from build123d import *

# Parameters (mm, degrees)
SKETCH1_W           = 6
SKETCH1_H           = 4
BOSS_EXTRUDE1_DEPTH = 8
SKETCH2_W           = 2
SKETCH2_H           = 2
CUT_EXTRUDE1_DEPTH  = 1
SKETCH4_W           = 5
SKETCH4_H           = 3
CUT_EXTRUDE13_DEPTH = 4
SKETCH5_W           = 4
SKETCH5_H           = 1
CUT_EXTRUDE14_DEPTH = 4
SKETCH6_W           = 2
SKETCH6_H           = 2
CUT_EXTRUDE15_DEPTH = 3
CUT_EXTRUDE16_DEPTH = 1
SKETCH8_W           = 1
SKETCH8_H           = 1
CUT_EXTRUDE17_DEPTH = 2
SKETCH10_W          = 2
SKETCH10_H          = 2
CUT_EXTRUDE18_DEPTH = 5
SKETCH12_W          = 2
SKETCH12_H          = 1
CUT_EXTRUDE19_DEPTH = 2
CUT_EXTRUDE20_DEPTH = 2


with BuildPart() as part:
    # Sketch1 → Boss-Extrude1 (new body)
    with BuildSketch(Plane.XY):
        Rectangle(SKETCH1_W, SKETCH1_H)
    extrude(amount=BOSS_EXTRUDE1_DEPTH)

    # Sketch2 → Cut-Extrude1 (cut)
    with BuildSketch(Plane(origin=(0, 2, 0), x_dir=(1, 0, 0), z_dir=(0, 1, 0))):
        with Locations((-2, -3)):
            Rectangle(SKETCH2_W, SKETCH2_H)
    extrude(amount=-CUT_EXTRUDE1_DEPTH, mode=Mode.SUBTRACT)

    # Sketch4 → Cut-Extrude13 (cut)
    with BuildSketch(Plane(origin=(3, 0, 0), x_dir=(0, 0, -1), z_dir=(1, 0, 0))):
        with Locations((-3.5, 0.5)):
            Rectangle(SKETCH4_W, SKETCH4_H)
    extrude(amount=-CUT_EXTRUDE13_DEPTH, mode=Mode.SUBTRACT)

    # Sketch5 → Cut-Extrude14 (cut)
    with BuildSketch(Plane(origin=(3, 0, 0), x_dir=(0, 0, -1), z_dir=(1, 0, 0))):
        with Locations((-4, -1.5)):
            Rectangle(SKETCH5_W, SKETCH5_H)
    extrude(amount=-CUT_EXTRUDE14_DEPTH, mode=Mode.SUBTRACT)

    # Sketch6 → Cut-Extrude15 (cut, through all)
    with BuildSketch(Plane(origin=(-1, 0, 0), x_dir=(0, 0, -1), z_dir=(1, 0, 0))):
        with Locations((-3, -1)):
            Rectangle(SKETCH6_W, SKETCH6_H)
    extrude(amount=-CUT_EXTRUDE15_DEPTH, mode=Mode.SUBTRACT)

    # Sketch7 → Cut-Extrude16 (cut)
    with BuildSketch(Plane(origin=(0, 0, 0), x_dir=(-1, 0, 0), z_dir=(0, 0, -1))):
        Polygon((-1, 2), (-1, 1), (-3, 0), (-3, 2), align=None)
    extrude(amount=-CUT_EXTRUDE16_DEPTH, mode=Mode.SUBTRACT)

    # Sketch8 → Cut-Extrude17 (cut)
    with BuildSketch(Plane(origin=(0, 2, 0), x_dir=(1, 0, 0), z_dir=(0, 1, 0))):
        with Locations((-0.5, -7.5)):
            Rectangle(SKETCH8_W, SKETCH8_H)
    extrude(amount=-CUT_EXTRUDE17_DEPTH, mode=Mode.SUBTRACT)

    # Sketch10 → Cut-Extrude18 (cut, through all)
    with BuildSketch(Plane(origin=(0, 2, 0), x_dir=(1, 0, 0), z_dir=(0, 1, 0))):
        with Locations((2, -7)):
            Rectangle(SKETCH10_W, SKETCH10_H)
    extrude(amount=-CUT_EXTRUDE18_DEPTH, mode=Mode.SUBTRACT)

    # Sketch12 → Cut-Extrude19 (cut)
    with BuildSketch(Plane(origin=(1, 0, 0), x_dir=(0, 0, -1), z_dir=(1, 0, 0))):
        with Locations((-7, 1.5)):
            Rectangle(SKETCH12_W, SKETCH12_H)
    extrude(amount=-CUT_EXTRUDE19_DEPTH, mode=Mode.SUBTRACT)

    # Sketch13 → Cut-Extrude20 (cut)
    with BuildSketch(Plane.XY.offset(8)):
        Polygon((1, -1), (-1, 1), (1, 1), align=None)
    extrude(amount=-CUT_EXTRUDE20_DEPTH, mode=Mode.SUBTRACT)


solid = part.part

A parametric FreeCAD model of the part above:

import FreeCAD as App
import Part
import Sketcher

V = App.Vector

doc = App.newDocument("Part")
params = doc.addObject("Spreadsheet::Sheet", "Params")
for row, (alias, value) in enumerate([
    ("sketch1_width", "6 mm"),
    ("sketch1_height", "4 mm"),
    ("pad1_length", "8 mm"),
    ("sketch2_width", "2 mm"),
    ("pocket1_length", "1 mm"),
    ("sketch3_width", "3 mm"),
    ("sketch3_height", "5 mm"),
    ("pocket2_length", "4 mm"),
    ("sketch4_width", "1 mm"),
    ("sketch4_height", "4 mm"),
    ("pocket3_length", "4 mm"),
    ("sketch5_width", "2 mm"),
    ("sketch6_width", "2 mm"),
    ("sketch6_height", "1 mm"),
    ("pocket5_length", "1 mm"),
    ("sketch7_width", "1 mm"),
    ("pocket6_length", "2 mm"),
    ("sketch8_width", "2 mm"),
    ("sketch9_width", "1 mm"),
    ("sketch9_height", "2 mm"),
    ("pocket8_length", "2 mm"),
    ("sketch10_width", "2 mm"),
    ("pocket9_length", "2 mm"),
], start=1):
    params.set(f"A{row}", alias)
    params.set(f"B{row}", "=" + value)
    params.setAlias(f"B{row}", alias)

body = doc.addObject("PartDesign::Body", "Body")

# Sketch on XY plane
sketch1 = body.newObject("Sketcher::SketchObject", "Sketch")
sketch1.AttachmentSupport = (doc.getObject("XY_Plane"), [""])
sketch1.MapMode = "FlatFace"
sketch1.addGeometry([
    Part.LineSegment(V(-3, 2, 0), V(-3, -2, 0)),
    Part.LineSegment(V(-3, -2, 0), V(3, -2, 0)),
    Part.LineSegment(V(3, -2, 0), V(3, 2, 0)),
    Part.LineSegment(V(3, 2, 0), V(-3, 2, 0)),
], False)
sketch1.addConstraint([
    Sketcher.Constraint("Coincident", 0, 2, 1, 1),
    Sketcher.Constraint("Coincident", 1, 2, 2, 1),
    Sketcher.Constraint("Coincident", 2, 2, 3, 1),
    Sketcher.Constraint("Coincident", 3, 2, 0, 1),
    Sketcher.Constraint("Vertical", 0),
    Sketcher.Constraint("Horizontal", 1),
    Sketcher.Constraint("Vertical", 2),
    Sketcher.Constraint("Horizontal", 3),
    Sketcher.Constraint("Symmetric", 0, 2, 2, 2, -1, 1),
    Sketcher.Constraint("DistanceX", 1, 1, 1, 2, 6.0),
    Sketcher.Constraint("DistanceY", 0, 2, 0, 1, 4.0),
])
sketch1.setExpression("Constraints[9]", "Params.sketch1_width")
sketch1.setExpression("Constraints[10]", "Params.sketch1_height")
pad1 = body.newObject("PartDesign::Pad", "Pad")
pad1.Profile = sketch1
pad1.setExpression("Length", "Params.pad1_length")

# Sketch on XZ plane
sketch2 = body.newObject("Sketcher::SketchObject", "Sketch001")
sketch2.AttachmentSupport = (doc.getObject("XZ_Plane"), [""])
sketch2.MapMode = "FlatFace"
sketch2.AttachmentOffset = App.Placement(V(0, 0, -2), App.Rotation())
sketch2.addGeometry([
    Part.LineSegment(V(-3, 2, 0), V(-3, 4, 0)),
    Part.LineSegment(V(-3, 4, 0), V(-1, 4, 0)),
    Part.LineSegment(V(-1, 4, 0), V(-1, 2, 0)),
    Part.LineSegment(V(-1, 2, 0), V(-3, 2, 0)),
], False)
sketch2.addConstraint([
    Sketcher.Constraint("Coincident", 0, 2, 1, 1),
    Sketcher.Constraint("Coincident", 1, 2, 2, 1),
    Sketcher.Constraint("Coincident", 2, 2, 3, 1),
    Sketcher.Constraint("Coincident", 3, 2, 0, 1),
    Sketcher.Constraint("Vertical", 0),
    Sketcher.Constraint("Horizontal", 1),
    Sketcher.Constraint("Vertical", 2),
    Sketcher.Constraint("Horizontal", 3),
    Sketcher.Constraint("Equal", 3, 0),
    Sketcher.Constraint("DistanceX", 1, 1, 1, 2, 2.0),
    Sketcher.Constraint("DistanceX", 0, 2, -1, 1, 3.0),
    Sketcher.Constraint("DistanceY", -1, 1, 0, 2, 4.0),
])
sketch2.setExpression("Constraints[9]", "Params.sketch2_width")
pocket1 = body.newObject("PartDesign::Pocket", "Pocket")
pocket1.Profile = sketch2
pocket1.setExpression("Length", "Params.pocket1_length")
pocket1.Reversed = True

# Sketch on YZ plane
sketch3 = body.newObject("Sketcher::SketchObject", "Sketch002")
sketch3.AttachmentSupport = (doc.getObject("YZ_Plane"), [""])
sketch3.MapMode = "FlatFace"
sketch3.AttachmentOffset = App.Placement(V(0, 0, 3), App.Rotation())
sketch3.addGeometry([
    Part.LineSegment(V(2, 6, 0), V(-1, 6, 0)),
    Part.LineSegment(V(-1, 6, 0), V(-1, 1, 0)),
    Part.LineSegment(V(-1, 1, 0), V(2, 1, 0)),
    Part.LineSegment(V(2, 1, 0), V(2, 6, 0)),
], False)
sketch3.addConstraint([
    Sketcher.Constraint("Coincident", 0, 2, 1, 1),
    Sketcher.Constraint("Coincident", 1, 2, 2, 1),
    Sketcher.Constraint("Coincident", 2, 2, 3, 1),
    Sketcher.Constraint("Coincident", 3, 2, 0, 1),
    Sketcher.Constraint("Horizontal", 0),
    Sketcher.Constraint("Vertical", 1),
    Sketcher.Constraint("Horizontal", 2),
    Sketcher.Constraint("Vertical", 3),
    Sketcher.Constraint("DistanceX", 0, 2, 0, 1, 3.0),
    Sketcher.Constraint("DistanceY", 1, 2, 1, 1, 5.0),
    Sketcher.Constraint("DistanceX", 0, 2, -1, 1, 1.0),
    Sketcher.Constraint("DistanceY", -1, 1, 0, 2, 6.0),
])
sketch3.setExpression("Constraints[8]", "Params.sketch3_width")
sketch3.setExpression("Constraints[9]", "Params.sketch3_height")
pocket2 = body.newObject("PartDesign::Pocket", "Pocket001")
pocket2.Profile = sketch3
pocket2.setExpression("Length", "Params.pocket2_length")

# Sketch on YZ plane
sketch4 = body.newObject("Sketcher::SketchObject", "Sketch003")
sketch4.AttachmentSupport = (doc.getObject("YZ_Plane"), [""])
sketch4.MapMode = "FlatFace"
sketch4.AttachmentOffset = App.Placement(V(0, 0, 3), App.Rotation())
sketch4.addGeometry([
    Part.LineSegment(V(-1, 6, 0), V(-2, 6, 0)),
    Part.LineSegment(V(-2, 6, 0), V(-2, 2, 0)),
    Part.LineSegment(V(-2, 2, 0), V(-1, 2, 0)),
    Part.LineSegment(V(-1, 2, 0), V(-1, 6, 0)),
], False)
sketch4.addConstraint([
    Sketcher.Constraint("Coincident", 0, 2, 1, 1),
    Sketcher.Constraint("Coincident", 1, 2, 2, 1),
    Sketcher.Constraint("Coincident", 2, 2, 3, 1),
    Sketcher.Constraint("Coincident", 3, 2, 0, 1),
    Sketcher.Constraint("Horizontal", 0),
    Sketcher.Constraint("Vertical", 1),
    Sketcher.Constraint("Horizontal", 2),
    Sketcher.Constraint("Vertical", 3),
    Sketcher.Constraint("DistanceX", 0, 2, 0, 1, 1.0),
    Sketcher.Constraint("DistanceY", 1, 2, 1, 1, 4.0),
    Sketcher.Constraint("DistanceX", 0, 2, -1, 1, 2.0),
    Sketcher.Constraint("DistanceY", -1, 1, 0, 2, 6.0),
])
sketch4.setExpression("Constraints[8]", "Params.sketch4_width")
sketch4.setExpression("Constraints[9]", "Params.sketch4_height")
pocket3 = body.newObject("PartDesign::Pocket", "Pocket002")
pocket3.Profile = sketch4
pocket3.setExpression("Length", "Params.pocket3_length")

# Sketch on YZ plane
sketch5 = body.newObject("Sketcher::SketchObject", "Sketch004")
sketch5.AttachmentSupport = (doc.getObject("YZ_Plane"), [""])
sketch5.MapMode = "FlatFace"
sketch5.AttachmentOffset = App.Placement(V(0, 0, -1), App.Rotation())
sketch5.addGeometry([
    Part.LineSegment(V(0, 4, 0), V(-2, 4, 0)),
    Part.LineSegment(V(-2, 4, 0), V(-2, 2, 0)),
    Part.LineSegment(V(-2, 2, 0), V(0, 2, 0)),
    Part.LineSegment(V(0, 2, 0), V(0, 4, 0)),
], False)
sketch5.addConstraint([
    Sketcher.Constraint("Coincident", 0, 2, 1, 1),
    Sketcher.Constraint("Coincident", 1, 2, 2, 1),
    Sketcher.Constraint("Coincident", 2, 2, 3, 1),
    Sketcher.Constraint("Coincident", 3, 2, 0, 1),
    Sketcher.Constraint("Horizontal", 0),
    Sketcher.Constraint("Vertical", 1),
    Sketcher.Constraint("Horizontal", 2),
    Sketcher.Constraint("Vertical", 3),
    Sketcher.Constraint("PointOnObject", 2, 2, -2),
    Sketcher.Constraint("Equal", 2, 1),
    Sketcher.Constraint("DistanceX", 0, 2, 0, 1, 2.0),
    Sketcher.Constraint("DistanceY", -1, 1, 0, 2, 4.0),
])
sketch5.setExpression("Constraints[10]", "Params.sketch5_width")
pocket4 = body.newObject("PartDesign::Pocket", "Pocket003")
pocket4.Profile = sketch5
pocket4.Type = "ThroughAll"

# Sketch on XY plane
sketch6 = body.newObject("Sketcher::SketchObject", "Sketch005")
sketch6.AttachmentSupport = (doc.getObject("XY_Plane"), [""])
sketch6.MapMode = "FlatFace"
sketch6.addGeometry([
    Part.LineSegment(V(1, 1, 0), V(1, 2, 0)),
    Part.LineSegment(V(1, 2, 0), V(3, 2, 0)),
    Part.LineSegment(V(3, 2, 0), V(3, 0, 0)),
    Part.LineSegment(V(3, 0, 0), V(1, 1, 0)),
], False)
sketch6.addConstraint([
    Sketcher.Constraint("Coincident", 0, 2, 1, 1),
    Sketcher.Constraint("Coincident", 1, 2, 2, 1),
    Sketcher.Constraint("Coincident", 2, 2, 3, 1),
    Sketcher.Constraint("Coincident", 3, 2, 0, 1),
    Sketcher.Constraint("Vertical", 0),
    Sketcher.Constraint("Horizontal", 1),
    Sketcher.Constraint("Vertical", 2),
    Sketcher.Constraint("PointOnObject", 2, 2, -1),
    Sketcher.Constraint("Equal", 1, 2),
    Sketcher.Constraint("DistanceX", 1, 1, 1, 2, 2.0),
    Sketcher.Constraint("DistanceY", 0, 1, 0, 2, 1.0),
    Sketcher.Constraint("DistanceX", -1, 1, 0, 2, 1.0),
])
sketch6.setExpression("Constraints[9]", "Params.sketch6_width")
sketch6.setExpression("Constraints[10]", "Params.sketch6_height")
pocket5 = body.newObject("PartDesign::Pocket", "Pocket004")
pocket5.Profile = sketch6
pocket5.setExpression("Length", "Params.pocket5_length")
pocket5.Reversed = True

# Sketch on XZ plane
sketch7 = body.newObject("Sketcher::SketchObject", "Sketch006")
sketch7.AttachmentSupport = (doc.getObject("XZ_Plane"), [""])
sketch7.MapMode = "FlatFace"
sketch7.AttachmentOffset = App.Placement(V(0, 0, -2), App.Rotation())
sketch7.addGeometry([
    Part.LineSegment(V(-1, 7, 0), V(-1, 8, 0)),
    Part.LineSegment(V(-1, 8, 0), V(0, 8, 0)),
    Part.LineSegment(V(0, 8, 0), V(0, 7, 0)),
    Part.LineSegment(V(0, 7, 0), V(-1, 7, 0)),
], False)
sketch7.addConstraint([
    Sketcher.Constraint("Coincident", 0, 2, 1, 1),
    Sketcher.Constraint("Coincident", 1, 2, 2, 1),
    Sketcher.Constraint("Coincident", 2, 2, 3, 1),
    Sketcher.Constraint("Coincident", 3, 2, 0, 1),
    Sketcher.Constraint("Vertical", 0),
    Sketcher.Constraint("Horizontal", 1),
    Sketcher.Constraint("Vertical", 2),
    Sketcher.Constraint("Horizontal", 3),
    Sketcher.Constraint("PointOnObject", 1, 2, -2),
    Sketcher.Constraint("Equal", 3, 0),
    Sketcher.Constraint("DistanceX", 1, 1, 1, 2, 1.0),
    Sketcher.Constraint("DistanceY", -1, 1, 0, 2, 8.0),
])
sketch7.setExpression("Constraints[10]", "Params.sketch7_width")
pocket6 = body.newObject("PartDesign::Pocket", "Pocket005")
pocket6.Profile = sketch7
pocket6.setExpression("Length", "Params.pocket6_length")
pocket6.Reversed = True

# Sketch on XZ plane
sketch8 = body.newObject("Sketcher::SketchObject", "Sketch007")
sketch8.AttachmentSupport = (doc.getObject("XZ_Plane"), [""])
sketch8.MapMode = "FlatFace"
sketch8.AttachmentOffset = App.Placement(V(0, 0, -2), App.Rotation())
sketch8.addGeometry([
    Part.LineSegment(V(1, 6, 0), V(1, 8, 0)),
    Part.LineSegment(V(1, 8, 0), V(3, 8, 0)),
    Part.LineSegment(V(3, 8, 0), V(3, 6, 0)),
    Part.LineSegment(V(3, 6, 0), V(1, 6, 0)),
], False)
sketch8.addConstraint([
    Sketcher.Constraint("Coincident", 0, 2, 1, 1),
    Sketcher.Constraint("Coincident", 1, 2, 2, 1),
    Sketcher.Constraint("Coincident", 2, 2, 3, 1),
    Sketcher.Constraint("Coincident", 3, 2, 0, 1),
    Sketcher.Constraint("Vertical", 0),
    Sketcher.Constraint("Horizontal", 1),
    Sketcher.Constraint("Vertical", 2),
    Sketcher.Constraint("Horizontal", 3),
    Sketcher.Constraint("Equal", 3, 0),
    Sketcher.Constraint("DistanceX", 1, 1, 1, 2, 2.0),
    Sketcher.Constraint("DistanceX", -1, 1, 0, 2, 1.0),
    Sketcher.Constraint("DistanceY", -1, 1, 0, 2, 8.0),
])
sketch8.setExpression("Constraints[9]", "Params.sketch8_width")
pocket7 = body.newObject("PartDesign::Pocket", "Pocket006")
pocket7.Profile = sketch8
pocket7.Type = "ThroughAll"
pocket7.Reversed = True

# Sketch on YZ plane
sketch9 = body.newObject("Sketcher::SketchObject", "Sketch008")
sketch9.AttachmentSupport = (doc.getObject("YZ_Plane"), [""])
sketch9.MapMode = "FlatFace"
sketch9.AttachmentOffset = App.Placement(V(0, 0, 1), App.Rotation())
sketch9.addGeometry([
    Part.LineSegment(V(2, 8, 0), V(1, 8, 0)),
    Part.LineSegment(V(1, 8, 0), V(1, 6, 0)),
    Part.LineSegment(V(1, 6, 0), V(2, 6, 0)),
    Part.LineSegment(V(2, 6, 0), V(2, 8, 0)),
], False)
sketch9.addConstraint([
    Sketcher.Constraint("Coincident", 0, 2, 1, 1),
    Sketcher.Constraint("Coincident", 1, 2, 2, 1),
    Sketcher.Constraint("Coincident", 2, 2, 3, 1),
    Sketcher.Constraint("Coincident", 3, 2, 0, 1),
    Sketcher.Constraint("Horizontal", 0),
    Sketcher.Constraint("Vertical", 1),
    Sketcher.Constraint("Horizontal", 2),
    Sketcher.Constraint("Vertical", 3),
    Sketcher.Constraint("DistanceX", 0, 2, 0, 1, 1.0),
    Sketcher.Constraint("DistanceY", 1, 2, 1, 1, 2.0),
    Sketcher.Constraint("DistanceX", -1, 1, 0, 2, 1.0),
    Sketcher.Constraint("DistanceY", -1, 1, 0, 2, 8.0),
])
sketch9.setExpression("Constraints[8]", "Params.sketch9_width")
sketch9.setExpression("Constraints[9]", "Params.sketch9_height")
pocket8 = body.newObject("PartDesign::Pocket", "Pocket007")
pocket8.Profile = sketch9
pocket8.setExpression("Length", "Params.pocket8_length")

# Sketch on XY plane
sketch10 = body.newObject("Sketcher::SketchObject", "Sketch009")
sketch10.AttachmentSupport = (doc.getObject("XY_Plane"), [""])
sketch10.MapMode = "FlatFace"
sketch10.AttachmentOffset = App.Placement(V(0, 0, 8), App.Rotation())
sketch10.addGeometry([
    Part.LineSegment(V(-1, 1, 0), V(1, -1, 0)),
    Part.LineSegment(V(1, -1, 0), V(1, 1, 0)),
    Part.LineSegment(V(1, 1, 0), V(-1, 1, 0)),
], False)
sketch10.addConstraint([
    Sketcher.Constraint("Coincident", 0, 2, 1, 1),
    Sketcher.Constraint("Coincident", 1, 2, 2, 1),
    Sketcher.Constraint("Coincident", 2, 2, 0, 1),
    Sketcher.Constraint("Vertical", 1),
    Sketcher.Constraint("Horizontal", 2),
    Sketcher.Constraint("Symmetric", 0, 2, 2, 2, -1, 1),
    Sketcher.Constraint("Equal", 2, 1),
    Sketcher.Constraint("DistanceX", 2, 2, 2, 1, 2.0),
])
sketch10.setExpression("Constraints[7]", "Params.sketch10_width")
pocket9 = body.newObject("PartDesign::Pocket", "Pocket008")
pocket9.Profile = sketch10
pocket9.setExpression("Length", "Params.pocket9_length")

doc.recompute()
